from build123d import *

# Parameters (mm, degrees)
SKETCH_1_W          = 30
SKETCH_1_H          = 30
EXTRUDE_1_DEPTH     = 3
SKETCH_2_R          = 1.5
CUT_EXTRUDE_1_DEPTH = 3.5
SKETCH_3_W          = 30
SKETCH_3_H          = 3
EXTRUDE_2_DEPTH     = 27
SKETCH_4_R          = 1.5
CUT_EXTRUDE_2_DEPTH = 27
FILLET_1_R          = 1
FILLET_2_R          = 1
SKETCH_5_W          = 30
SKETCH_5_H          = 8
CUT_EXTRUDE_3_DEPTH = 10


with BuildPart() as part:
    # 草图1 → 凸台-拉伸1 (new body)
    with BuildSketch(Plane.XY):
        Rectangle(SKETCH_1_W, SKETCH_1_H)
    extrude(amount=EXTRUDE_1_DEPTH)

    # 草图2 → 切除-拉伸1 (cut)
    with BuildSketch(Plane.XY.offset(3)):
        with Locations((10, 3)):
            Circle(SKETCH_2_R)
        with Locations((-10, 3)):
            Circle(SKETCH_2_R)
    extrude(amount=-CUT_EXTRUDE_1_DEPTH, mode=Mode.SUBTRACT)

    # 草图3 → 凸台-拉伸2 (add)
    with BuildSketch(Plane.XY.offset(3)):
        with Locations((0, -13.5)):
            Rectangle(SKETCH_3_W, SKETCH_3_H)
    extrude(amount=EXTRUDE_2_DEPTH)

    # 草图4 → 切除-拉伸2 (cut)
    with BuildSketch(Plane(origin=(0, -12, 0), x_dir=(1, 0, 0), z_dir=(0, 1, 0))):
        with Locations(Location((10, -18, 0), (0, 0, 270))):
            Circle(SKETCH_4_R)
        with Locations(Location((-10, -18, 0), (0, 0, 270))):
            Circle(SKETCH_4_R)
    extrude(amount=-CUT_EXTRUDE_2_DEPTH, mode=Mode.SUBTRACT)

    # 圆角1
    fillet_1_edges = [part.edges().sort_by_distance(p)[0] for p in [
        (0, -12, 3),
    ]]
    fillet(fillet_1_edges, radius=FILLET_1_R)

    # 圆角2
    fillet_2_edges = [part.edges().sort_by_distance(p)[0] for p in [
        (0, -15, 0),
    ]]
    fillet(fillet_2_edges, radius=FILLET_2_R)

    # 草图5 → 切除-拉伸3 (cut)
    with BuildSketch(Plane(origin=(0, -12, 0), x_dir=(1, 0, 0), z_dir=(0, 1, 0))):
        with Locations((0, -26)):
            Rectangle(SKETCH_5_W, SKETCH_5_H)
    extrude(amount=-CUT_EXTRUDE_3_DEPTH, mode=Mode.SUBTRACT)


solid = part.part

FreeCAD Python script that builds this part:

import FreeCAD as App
import Part
import Sketcher
from FreeCAD import Vector
Q = App.Units.Quantity


def edges_at(feature, points):
    """Names of the edges that pass closest to the given points."""
    edges = feature.Shape.Edges
    near = lambda p: min(range(len(edges)), key=lambda i: edges[i].distToShape(Part.Vertex(*p))[0])
    return sorted({f"Edge{near(p) + 1}" for p in points})

doc = App.newDocument("Part")
body = doc.addObject("PartDesign::Body", "Body")

sketch1 = doc.addObject("Sketcher::SketchObject", "Sketch")
body.addObject(sketch1)
sketch1.AttachmentSupport = (doc.XY_Plane, [""])
sketch1.MapMode = "FlatFace"
sketch1.addGeometry(Part.LineSegment(Vector(-15, 15, 0), Vector(-15, -15, 0)), False)
sketch1.addGeometry(Part.LineSegment(Vector(-15, -15, 0), Vector(15, -15, 0)), False)
sketch1.addGeometry(Part.LineSegment(Vector(15, -15, 0), Vector(15, 15, 0)), False)
sketch1.addGeometry(Part.LineSegment(Vector(15, 15, 0), Vector(-15, 15, 0)), False)
sketch1.addConstraint(Sketcher.Constraint("Coincident", 0, 2, 1, 1))
sketch1.addConstraint(Sketcher.Constraint("Coincident", 1, 2, 2, 1))
sketch1.addConstraint(Sketcher.Constraint("Coincident", 2, 2, 3, 1))
sketch1.addConstraint(Sketcher.Constraint("Coincident", 3, 2, 0, 1))
sketch1.addConstraint(Sketcher.Constraint("Vertical", 0))
sketch1.addConstraint(Sketcher.Constraint("Horizontal", 1))
sketch1.addConstraint(Sketcher.Constraint("Vertical", 2))
sketch1.addConstraint(Sketcher.Constraint("Horizontal", 3))
sketch1.addConstraint(Sketcher.Constraint("Symmetric", 0, 2, 2, 2, -1, 1))
sketch1.addConstraint(Sketcher.Constraint("Equal", 3, 0))
sketch1.addConstraint(Sketcher.Constraint("DistanceX", 1, 1, 1, 2, Q("30 mm")))
pad1 = doc.addObject("PartDesign::Pad", "Pad")
body.addObject(pad1)
pad1.Profile = sketch1
pad1.Length = 3

sketch2 = doc.addObject("Sketcher::SketchObject", "Sketch001")
body.addObject(sketch2)
sketch2.AttachmentSupport = (doc.XY_Plane, [""])
sketch2.MapMode = "FlatFace"
sketch2.AttachmentOffset = App.Placement(Vector(0, 0, 3), App.Rotation())
sketch2.addGeometry(Part.Circle(Vector(10, 3, 0), Vector(0, 0, 1), 1.5), False)
sketch2.addGeometry(Part.Circle(Vector(-10, 3, 0), Vector(0, 0, 1), 1.5), False)
sketch2.addConstraint(Sketcher.Constraint("Equal", 0, 1))
sketch2.addConstraint(Sketcher.Constraint("Symmetric", 0, 3, 1, 3, -2))
sketch2.addConstraint(Sketcher.Constraint("Diameter", 0, Q("3 mm")))
sketch2.addConstraint(Sketcher.Constraint("DistanceX", -1, 1, 0, 3, Q("10 mm")))
sketch2.addConstraint(Sketcher.Constraint("DistanceY", -1, 1, 0, 3, Q("3 mm")))
pocket1 = doc.addObject("PartDesign::Pocket", "Pocket")
body.addObject(pocket1)
pocket1.Profile = sketch2
pocket1.Length = 3.5

sketch3 = doc.addObject("Sketcher::SketchObject", "Sketch002")
body.addObject(sketch3)
sketch3.AttachmentSupport = (doc.XY_Plane, [""])
sketch3.MapMode = "FlatFace"
sketch3.AttachmentOffset = App.Placement(Vector(0, 0, 3), App.Rotation())
sketch3.addGeometry(Part.LineSegment(Vector(-15, -12, 0), Vector(-15, -15, 0)), False)
sketch3.addGeometry(Part.LineSegment(Vector(-15, -15, 0), Vector(15, -15, 0)), False)
sketch3.addGeometry(Part.LineSegment(Vector(15, -15, 0), Vector(15, -12, 0)), False)
sketch3.addGeometry(Part.LineSegment(Vector(15, -12, 0), Vector(-15, -12, 0)), False)
sketch3.addConstraint(Sketcher.Constraint("Coincident", 0, 2, 1, 1))
sketch3.addConstraint(Sketcher.Constraint("Coincident", 1, 2, 2, 1))
sketch3.addConstraint(Sketcher.Constraint("Coincident", 2, 2, 3, 1))
sketch3.addConstraint(Sketcher.Constraint("Coincident", 3, 2, 0, 1))
sketch3.addConstraint(Sketcher.Constraint("Vertical", 0))
sketch3.addConstraint(Sketcher.Constraint("Horizontal", 1))
sketch3.addConstraint(Sketcher.Constraint("Vertical", 2))
sketch3.addConstraint(Sketcher.Constraint("Horizontal", 3))
sketch3.addConstraint(Sketcher.Constraint("DistanceX", 1, 1, 1, 2, Q("30 mm")))
sketch3.addConstraint(Sketcher.Constraint("DistanceY", 0, 2, 0, 1, Q("3 mm")))
sketch3.addConstraint(Sketcher.Constraint("DistanceX", 0, 2, -1, 1, Q("15 mm")))
sketch3.addConstraint(Sketcher.Constraint("DistanceY", 0, 2, -1, 1, Q("15 mm")))
pad2 = doc.addObject("PartDesign::Pad", "Pad001")
body.addObject(pad2)
pad2.Profile = sketch3
pad2.Length = 27

sketch4 = doc.addObject("Sketcher::SketchObject", "Sketch003")
body.addObject(sketch4)
sketch4.AttachmentSupport = (doc.XZ_Plane, [""])
sketch4.MapMode = "FlatFace"
sketch4.AttachmentOffset = App.Placement(Vector(0, 0, 12), App.Rotation())
sketch4.addGeometry(Part.Circle(Vector(10, 18, 0), Vector(0, 0, 1), 1.5), False)
sketch4.addGeometry(Part.Circle(Vector(-10, 18, 0), Vector(0, 0, 1), 1.5), False)
sketch4.addConstraint(Sketcher.Constraint("Equal", 0, 1))
sketch4.addConstraint(Sketcher.Constraint("Symmetric", 0, 3, 1, 3, -2))
sketch4.addConstraint(Sketcher.Constraint("Diameter", 0, Q("3 mm")))
sketch4.addConstraint(Sketcher.Constraint("DistanceX", -1, 1, 0, 3, Q("10 mm")))
sketch4.addConstraint(Sketcher.Constraint("DistanceY", -1, 1, 0, 3, Q("18 mm")))
pocket2 = doc.addObject("PartDesign::Pocket", "Pocket001")
body.addObject(pocket2)
pocket2.Profile = sketch4
pocket2.Length = 27
pocket2.Reversed = True
doc.recompute()

fillet = doc.addObject("PartDesign::Fillet", "Fillet")
body.addObject(fillet)
fillet.Base = (pocket2, edges_at(pocket2, [(0, -12, 3)]))
fillet.Radius = 1
doc.recompute()

fillet2 = doc.addObject("PartDesign::Fillet", "Fillet001")
body.addObject(fillet2)
fillet2.Base = (fillet, edges_at(fillet, [(0, -15, 0)]))
fillet2.Radius = 1

sketch5 = doc.addObject("Sketcher::SketchObject", "Sketch004")
body.addObject(sketch5)
sketch5.AttachmentSupport = (doc.XZ_Plane, [""])
sketch5.MapMode = "FlatFace"
sketch5.AttachmentOffset = App.Placement(Vector(0, 0, 12), App.Rotation())
sketch5.addGeometry(Part.LineSegment(Vector(-15, 22, 0), Vector(-15, 30, 0)), False)
sketch5.addGeometry(Part.LineSegment(Vector(-15, 30, 0), Vector(15, 30, 0)), False)
sketch5.addGeometry(Part.LineSegment(Vector(15, 30, 0), Vector(15, 22, 0)), False)
sketch5.addGeometry(Part.LineSegment(Vector(15, 22, 0), Vector(-15, 22, 0)), False)
sketch5.addConstraint(Sketcher.Constraint("Coincident", 0, 2, 1, 1))
sketch5.addConstraint(Sketcher.Constraint("Coincident", 1, 2, 2, 1))
sketch5.addConstraint(Sketcher.Constraint("Coincident", 2, 2, 3, 1))
sketch5.addConstraint(Sketcher.Constraint("Coincident", 3, 2, 0, 1))
sketch5.addConstraint(Sketcher.Constraint("Vertical", 0))
sketch5.addConstraint(Sketcher.Constraint("Horizontal", 1))
sketch5.addConstraint(Sketcher.Constraint("Vertical", 2))
sketch5.addConstraint(Sketcher.Constraint("Horizontal", 3))
sketch5.addConstraint(Sketcher.Constraint("DistanceX", 1, 1, 1, 2, Q("30 mm")))
sketch5.addConstraint(Sketcher.Constraint("DistanceY", 0, 1, 0, 2, Q("8 mm")))
sketch5.addConstraint(Sketcher.Constraint("DistanceX", 0, 2, -1, 1, Q("15 mm")))
sketch5.addConstraint(Sketcher.Constraint("DistanceY", -1, 1, 0, 2, Q("30 mm")))
pocket3 = doc.addObject("PartDesign::Pocket", "Pocket002")
body.addObject(pocket3)
pocket3.Profile = sketch5
pocket3.Length = 10
pocket3.Reversed = True

doc.recompute()
